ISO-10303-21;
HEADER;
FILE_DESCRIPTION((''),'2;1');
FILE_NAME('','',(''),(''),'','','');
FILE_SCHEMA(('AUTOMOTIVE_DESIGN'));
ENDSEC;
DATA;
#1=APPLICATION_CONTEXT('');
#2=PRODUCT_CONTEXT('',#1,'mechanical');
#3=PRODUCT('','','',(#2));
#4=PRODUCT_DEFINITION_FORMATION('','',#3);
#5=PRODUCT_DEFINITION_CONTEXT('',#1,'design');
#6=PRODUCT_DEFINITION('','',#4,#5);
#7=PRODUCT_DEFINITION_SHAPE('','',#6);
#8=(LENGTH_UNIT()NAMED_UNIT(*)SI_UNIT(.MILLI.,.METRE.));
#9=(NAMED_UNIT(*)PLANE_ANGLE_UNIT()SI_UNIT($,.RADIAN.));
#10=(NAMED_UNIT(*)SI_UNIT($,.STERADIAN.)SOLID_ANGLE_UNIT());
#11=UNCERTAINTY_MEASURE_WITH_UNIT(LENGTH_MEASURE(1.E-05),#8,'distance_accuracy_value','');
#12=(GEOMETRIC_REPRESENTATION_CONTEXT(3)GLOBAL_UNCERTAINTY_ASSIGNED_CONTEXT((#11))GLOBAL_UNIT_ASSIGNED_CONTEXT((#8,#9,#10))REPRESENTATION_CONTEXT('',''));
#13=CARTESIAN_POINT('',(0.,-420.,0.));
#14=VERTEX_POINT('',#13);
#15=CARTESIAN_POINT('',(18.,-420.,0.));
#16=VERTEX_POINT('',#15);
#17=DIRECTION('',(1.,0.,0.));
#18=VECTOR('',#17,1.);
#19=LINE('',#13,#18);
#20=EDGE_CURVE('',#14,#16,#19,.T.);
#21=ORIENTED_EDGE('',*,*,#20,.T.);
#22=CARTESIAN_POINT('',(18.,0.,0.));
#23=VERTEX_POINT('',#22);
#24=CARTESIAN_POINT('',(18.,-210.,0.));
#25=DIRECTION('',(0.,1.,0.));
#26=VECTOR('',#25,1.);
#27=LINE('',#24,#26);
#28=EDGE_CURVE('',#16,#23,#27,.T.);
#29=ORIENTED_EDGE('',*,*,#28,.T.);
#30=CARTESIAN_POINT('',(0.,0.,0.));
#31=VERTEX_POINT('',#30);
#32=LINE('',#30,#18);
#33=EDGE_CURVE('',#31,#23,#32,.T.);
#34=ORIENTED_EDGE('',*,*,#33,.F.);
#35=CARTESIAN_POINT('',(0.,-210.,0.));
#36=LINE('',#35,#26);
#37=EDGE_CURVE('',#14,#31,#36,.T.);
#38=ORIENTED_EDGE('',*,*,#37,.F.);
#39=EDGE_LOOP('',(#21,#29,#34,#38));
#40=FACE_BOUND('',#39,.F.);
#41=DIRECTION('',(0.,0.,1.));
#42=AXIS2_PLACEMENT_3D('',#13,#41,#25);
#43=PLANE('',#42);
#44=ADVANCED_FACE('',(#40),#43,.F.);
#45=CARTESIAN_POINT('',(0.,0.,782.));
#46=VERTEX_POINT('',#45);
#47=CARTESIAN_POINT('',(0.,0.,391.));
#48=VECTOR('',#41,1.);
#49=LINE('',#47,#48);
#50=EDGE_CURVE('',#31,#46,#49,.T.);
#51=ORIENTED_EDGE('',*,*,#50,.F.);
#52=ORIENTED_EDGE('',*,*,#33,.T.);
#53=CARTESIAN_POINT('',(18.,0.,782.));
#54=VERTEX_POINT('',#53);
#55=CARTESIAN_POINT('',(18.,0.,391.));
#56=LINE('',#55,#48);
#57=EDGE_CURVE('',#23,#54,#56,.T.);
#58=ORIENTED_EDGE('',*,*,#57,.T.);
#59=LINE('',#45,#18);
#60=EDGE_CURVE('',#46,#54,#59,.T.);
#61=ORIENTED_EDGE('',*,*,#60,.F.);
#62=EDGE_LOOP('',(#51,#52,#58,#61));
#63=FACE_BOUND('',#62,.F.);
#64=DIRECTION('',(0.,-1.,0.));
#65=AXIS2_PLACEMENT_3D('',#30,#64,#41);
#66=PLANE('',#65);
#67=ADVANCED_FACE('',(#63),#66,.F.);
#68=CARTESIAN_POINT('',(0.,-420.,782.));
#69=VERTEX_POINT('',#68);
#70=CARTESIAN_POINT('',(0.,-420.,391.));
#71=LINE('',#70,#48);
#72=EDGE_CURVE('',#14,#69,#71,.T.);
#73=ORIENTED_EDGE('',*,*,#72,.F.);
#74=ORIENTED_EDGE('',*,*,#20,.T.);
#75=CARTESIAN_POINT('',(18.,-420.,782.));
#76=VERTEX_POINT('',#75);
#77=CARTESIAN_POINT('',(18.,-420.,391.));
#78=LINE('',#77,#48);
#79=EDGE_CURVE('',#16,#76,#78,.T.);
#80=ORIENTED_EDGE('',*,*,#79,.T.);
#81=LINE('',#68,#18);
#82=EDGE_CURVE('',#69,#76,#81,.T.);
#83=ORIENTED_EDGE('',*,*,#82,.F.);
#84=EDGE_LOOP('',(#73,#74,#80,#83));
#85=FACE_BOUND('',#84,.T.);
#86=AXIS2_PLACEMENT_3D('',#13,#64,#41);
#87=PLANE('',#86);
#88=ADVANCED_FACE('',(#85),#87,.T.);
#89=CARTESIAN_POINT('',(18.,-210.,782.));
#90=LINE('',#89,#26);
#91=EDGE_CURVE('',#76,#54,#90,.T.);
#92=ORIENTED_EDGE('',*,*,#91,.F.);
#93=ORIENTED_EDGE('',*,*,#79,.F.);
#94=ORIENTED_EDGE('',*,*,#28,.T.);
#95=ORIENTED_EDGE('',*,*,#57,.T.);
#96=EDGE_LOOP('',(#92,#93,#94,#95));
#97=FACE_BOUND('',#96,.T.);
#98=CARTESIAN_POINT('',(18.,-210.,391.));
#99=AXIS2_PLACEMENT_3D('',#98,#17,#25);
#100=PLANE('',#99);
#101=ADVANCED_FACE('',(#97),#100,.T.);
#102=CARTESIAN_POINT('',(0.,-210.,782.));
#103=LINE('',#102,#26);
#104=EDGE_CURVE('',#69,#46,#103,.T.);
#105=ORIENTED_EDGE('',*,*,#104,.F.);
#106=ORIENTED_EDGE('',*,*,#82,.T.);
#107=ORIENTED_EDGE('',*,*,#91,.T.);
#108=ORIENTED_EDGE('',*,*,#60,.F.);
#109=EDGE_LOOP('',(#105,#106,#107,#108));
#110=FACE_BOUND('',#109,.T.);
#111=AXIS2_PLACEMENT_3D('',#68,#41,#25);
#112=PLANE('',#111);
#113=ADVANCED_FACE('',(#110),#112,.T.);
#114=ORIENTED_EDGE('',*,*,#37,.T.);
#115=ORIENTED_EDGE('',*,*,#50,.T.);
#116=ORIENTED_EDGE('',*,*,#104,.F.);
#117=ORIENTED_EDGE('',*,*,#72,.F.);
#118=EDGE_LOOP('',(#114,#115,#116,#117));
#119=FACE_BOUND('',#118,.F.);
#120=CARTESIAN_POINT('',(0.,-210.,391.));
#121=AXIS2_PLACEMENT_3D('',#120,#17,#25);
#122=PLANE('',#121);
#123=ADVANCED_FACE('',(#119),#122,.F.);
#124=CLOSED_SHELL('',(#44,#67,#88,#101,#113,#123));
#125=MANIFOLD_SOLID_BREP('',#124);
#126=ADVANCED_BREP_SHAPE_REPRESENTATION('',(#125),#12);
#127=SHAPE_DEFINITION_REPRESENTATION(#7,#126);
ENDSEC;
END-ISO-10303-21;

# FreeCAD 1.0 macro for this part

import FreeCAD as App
import Part
import Sketcher
Q = App.Units.Quantity

doc = App.newDocument("Part")
body = doc.addObject("PartDesign::Body", "Body")

sketch1 = body.newObject("Sketcher::SketchObject", "Sketch")
sketch1.AttachmentSupport = (doc.getObject("YZ_Plane"), [""])
sketch1.MapMode = "FlatFace"
sketch1.addGeometry([
    Part.LineSegment(App.Vector(-420, 782, 0), App.Vector(-420, 0, 0)),
    Part.LineSegment(App.Vector(-420, 0, 0), App.Vector(0, 0, 0)),
    Part.LineSegment(App.Vector(0, 0, 0), App.Vector(0, 782, 0)),
    Part.LineSegment(App.Vector(0, 782, 0), App.Vector(-420, 782, 0)),
], False)
sketch1.addConstraint([
    Sketcher.Constraint("Coincident", 0, 2, 1, 1),
    Sketcher.Constraint("Coincident", 1, 2, 2, 1),
    Sketcher.Constraint("Coincident", 2, 2, 3, 1),
    Sketcher.Constraint("Coincident", 3, 2, 0, 1),
    Sketcher.Constraint("Vertical", 0),
    Sketcher.Constraint("Horizontal", 1),
    Sketcher.Constraint("Vertical", 2),
    Sketcher.Constraint("Horizontal", 3),
    Sketcher.Constraint("Coincident", 1, 2, -1, 1),
    Sketcher.Constraint("DistanceX", 1, 1, 1, 2, Q("420 mm")),
    Sketcher.Constraint("DistanceY", 0, 2, 0, 1, Q("782 mm")),
])
pad1 = body.newObject("PartDesign::Pad", "Pad")
pad1.Profile = sketch1
pad1.Length = 18

doc.recompute()
